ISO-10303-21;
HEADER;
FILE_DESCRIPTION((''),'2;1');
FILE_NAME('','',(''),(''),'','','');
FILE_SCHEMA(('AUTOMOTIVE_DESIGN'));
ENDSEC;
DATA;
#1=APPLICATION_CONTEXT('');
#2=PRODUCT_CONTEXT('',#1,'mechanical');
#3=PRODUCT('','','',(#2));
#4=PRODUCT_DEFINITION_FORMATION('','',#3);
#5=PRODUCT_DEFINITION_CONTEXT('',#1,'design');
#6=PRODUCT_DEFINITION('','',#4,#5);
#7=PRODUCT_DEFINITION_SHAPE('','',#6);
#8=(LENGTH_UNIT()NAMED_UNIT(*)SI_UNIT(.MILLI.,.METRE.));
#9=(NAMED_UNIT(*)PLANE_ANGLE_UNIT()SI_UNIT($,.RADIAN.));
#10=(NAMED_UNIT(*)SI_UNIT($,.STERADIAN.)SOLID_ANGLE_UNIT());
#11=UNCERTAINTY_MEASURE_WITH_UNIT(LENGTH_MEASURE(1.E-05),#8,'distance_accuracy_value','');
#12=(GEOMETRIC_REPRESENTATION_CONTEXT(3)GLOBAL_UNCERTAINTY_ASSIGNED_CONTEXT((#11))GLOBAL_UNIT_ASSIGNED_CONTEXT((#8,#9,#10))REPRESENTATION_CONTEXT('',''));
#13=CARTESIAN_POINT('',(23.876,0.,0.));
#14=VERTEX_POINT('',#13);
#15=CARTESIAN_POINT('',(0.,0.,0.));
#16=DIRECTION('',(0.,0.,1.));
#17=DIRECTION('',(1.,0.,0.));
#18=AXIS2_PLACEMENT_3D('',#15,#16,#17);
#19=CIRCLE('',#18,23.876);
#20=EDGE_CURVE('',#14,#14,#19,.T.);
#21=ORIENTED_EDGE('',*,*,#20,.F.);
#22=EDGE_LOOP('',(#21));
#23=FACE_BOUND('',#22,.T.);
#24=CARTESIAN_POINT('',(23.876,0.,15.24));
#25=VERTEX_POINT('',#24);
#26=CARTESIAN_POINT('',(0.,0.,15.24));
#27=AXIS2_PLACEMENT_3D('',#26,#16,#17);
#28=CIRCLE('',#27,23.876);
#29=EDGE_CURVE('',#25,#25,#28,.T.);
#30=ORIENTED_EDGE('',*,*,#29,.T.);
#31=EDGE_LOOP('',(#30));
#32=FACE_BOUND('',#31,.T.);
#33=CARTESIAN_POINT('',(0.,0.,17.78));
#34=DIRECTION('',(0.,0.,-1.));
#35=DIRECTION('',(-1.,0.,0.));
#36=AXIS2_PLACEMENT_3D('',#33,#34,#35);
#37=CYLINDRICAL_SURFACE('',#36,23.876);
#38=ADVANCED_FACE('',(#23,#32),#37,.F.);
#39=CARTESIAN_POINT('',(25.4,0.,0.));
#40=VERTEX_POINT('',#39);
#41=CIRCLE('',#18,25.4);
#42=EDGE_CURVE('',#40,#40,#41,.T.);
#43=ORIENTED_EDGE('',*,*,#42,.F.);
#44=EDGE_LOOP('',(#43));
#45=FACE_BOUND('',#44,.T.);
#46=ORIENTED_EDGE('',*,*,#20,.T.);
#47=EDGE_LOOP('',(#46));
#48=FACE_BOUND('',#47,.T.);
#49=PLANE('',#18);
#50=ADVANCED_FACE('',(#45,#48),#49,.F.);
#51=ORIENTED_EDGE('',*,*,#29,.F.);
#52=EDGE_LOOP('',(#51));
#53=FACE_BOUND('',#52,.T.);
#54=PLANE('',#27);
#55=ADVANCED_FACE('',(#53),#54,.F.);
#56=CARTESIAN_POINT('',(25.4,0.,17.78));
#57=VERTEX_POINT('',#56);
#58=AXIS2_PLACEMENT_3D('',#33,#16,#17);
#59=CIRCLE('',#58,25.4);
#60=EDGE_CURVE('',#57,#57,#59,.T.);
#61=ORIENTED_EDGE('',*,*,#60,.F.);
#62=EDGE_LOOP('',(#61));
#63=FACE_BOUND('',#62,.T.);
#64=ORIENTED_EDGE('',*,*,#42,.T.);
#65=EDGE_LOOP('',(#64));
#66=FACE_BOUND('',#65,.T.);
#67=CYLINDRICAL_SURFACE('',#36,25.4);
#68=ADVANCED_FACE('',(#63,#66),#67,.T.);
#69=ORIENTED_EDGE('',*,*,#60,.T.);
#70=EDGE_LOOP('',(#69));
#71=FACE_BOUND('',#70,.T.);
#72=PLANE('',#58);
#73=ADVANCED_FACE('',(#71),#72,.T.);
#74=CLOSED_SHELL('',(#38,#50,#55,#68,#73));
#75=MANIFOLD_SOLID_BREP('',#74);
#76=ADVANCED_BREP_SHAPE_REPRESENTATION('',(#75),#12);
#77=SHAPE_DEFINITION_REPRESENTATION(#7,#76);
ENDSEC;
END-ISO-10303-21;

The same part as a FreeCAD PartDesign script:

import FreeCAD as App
import Part
import Sketcher

V = App.Vector
Q = App.Units.Quantity

doc = App.newDocument("Part")
params = doc.addObject("Spreadsheet::Sheet", "Params")
for row, (alias, value) in enumerate([
    ("sketch1_diameter", "2 in"),
    ("sketch1_diameter2", "1.88 in"),
    ("pad1_length", "0.7 in"),
    ("sketch2_diameter", "1.88 in"),
    ("pad2_length", "0.1 in"),
], start=1):
    params.set(f"A{row}", alias)
    params.set(f"B{row}", "=" + value)
    params.setAlias(f"B{row}", alias)

body = doc.addObject("PartDesign::Body", "Body")

# Sketch on XY plane
sketch1 = body.newObject("Sketcher::SketchObject", "Sketch")
sketch1.AttachmentSupport = (doc.getObject("XY_Plane"), [""])
sketch1.MapMode = "FlatFace"
sketch1.addGeometry(Part.Circle(V(0, 0, 0), V(0, 0, 1), 25), False)
sketch1.addGeometry(Part.Circle(V(0, 0, 0), V(0, 0, 1), 24), False)
sketch1.addConstraint(Sketcher.Constraint("Coincident", 0, 3, -1, 1))
sketch1.addConstraint(Sketcher.Constraint("Coincident", 1, 3, -1, 1))
sketch1.addConstraint(Sketcher.Constraint("Diameter", 0, Q("2 in")))
sketch1.addConstraint(Sketcher.Constraint("Diameter", 1, Q("1.88 in")))
sketch1.setExpression("Constraints[2]", "Params.sketch1_diameter")
sketch1.setExpression("Constraints[3]", "Params.sketch1_diameter2")
pad1 = body.newObject("PartDesign::Pad", "Pad")
pad1.Profile = sketch1
pad1.setExpression("Length", "Params.pad1_length")

# Sketch on XY plane
sketch2 = body.newObject("Sketcher::SketchObject", "Sketch001")
sketch2.AttachmentSupport = (doc.getObject("XY_Plane"), [""])
sketch2.MapMode = "FlatFace"
sketch2.AttachmentOffset = App.Placement(V(0, 0, 0.6 * 25.4), App.Rotation())
sketch2.addGeometry(Part.Circle(V(0, 0, 0), V(0, 0, 1), 24), False)
sketch2.addConstraint(Sketcher.Constraint("Coincident", 0, 3, -1, 1))
sketch2.addConstraint(Sketcher.Constraint("Diameter", 0, Q("1.88 in")))
sketch2.setExpression("Constraints[1]", "Params.sketch2_diameter")
pad2 = body.newObject("PartDesign::Pad", "Pad001")
pad2.Profile = sketch2
pad2.setExpression("Length", "Params.pad2_length")

doc.recompute()
